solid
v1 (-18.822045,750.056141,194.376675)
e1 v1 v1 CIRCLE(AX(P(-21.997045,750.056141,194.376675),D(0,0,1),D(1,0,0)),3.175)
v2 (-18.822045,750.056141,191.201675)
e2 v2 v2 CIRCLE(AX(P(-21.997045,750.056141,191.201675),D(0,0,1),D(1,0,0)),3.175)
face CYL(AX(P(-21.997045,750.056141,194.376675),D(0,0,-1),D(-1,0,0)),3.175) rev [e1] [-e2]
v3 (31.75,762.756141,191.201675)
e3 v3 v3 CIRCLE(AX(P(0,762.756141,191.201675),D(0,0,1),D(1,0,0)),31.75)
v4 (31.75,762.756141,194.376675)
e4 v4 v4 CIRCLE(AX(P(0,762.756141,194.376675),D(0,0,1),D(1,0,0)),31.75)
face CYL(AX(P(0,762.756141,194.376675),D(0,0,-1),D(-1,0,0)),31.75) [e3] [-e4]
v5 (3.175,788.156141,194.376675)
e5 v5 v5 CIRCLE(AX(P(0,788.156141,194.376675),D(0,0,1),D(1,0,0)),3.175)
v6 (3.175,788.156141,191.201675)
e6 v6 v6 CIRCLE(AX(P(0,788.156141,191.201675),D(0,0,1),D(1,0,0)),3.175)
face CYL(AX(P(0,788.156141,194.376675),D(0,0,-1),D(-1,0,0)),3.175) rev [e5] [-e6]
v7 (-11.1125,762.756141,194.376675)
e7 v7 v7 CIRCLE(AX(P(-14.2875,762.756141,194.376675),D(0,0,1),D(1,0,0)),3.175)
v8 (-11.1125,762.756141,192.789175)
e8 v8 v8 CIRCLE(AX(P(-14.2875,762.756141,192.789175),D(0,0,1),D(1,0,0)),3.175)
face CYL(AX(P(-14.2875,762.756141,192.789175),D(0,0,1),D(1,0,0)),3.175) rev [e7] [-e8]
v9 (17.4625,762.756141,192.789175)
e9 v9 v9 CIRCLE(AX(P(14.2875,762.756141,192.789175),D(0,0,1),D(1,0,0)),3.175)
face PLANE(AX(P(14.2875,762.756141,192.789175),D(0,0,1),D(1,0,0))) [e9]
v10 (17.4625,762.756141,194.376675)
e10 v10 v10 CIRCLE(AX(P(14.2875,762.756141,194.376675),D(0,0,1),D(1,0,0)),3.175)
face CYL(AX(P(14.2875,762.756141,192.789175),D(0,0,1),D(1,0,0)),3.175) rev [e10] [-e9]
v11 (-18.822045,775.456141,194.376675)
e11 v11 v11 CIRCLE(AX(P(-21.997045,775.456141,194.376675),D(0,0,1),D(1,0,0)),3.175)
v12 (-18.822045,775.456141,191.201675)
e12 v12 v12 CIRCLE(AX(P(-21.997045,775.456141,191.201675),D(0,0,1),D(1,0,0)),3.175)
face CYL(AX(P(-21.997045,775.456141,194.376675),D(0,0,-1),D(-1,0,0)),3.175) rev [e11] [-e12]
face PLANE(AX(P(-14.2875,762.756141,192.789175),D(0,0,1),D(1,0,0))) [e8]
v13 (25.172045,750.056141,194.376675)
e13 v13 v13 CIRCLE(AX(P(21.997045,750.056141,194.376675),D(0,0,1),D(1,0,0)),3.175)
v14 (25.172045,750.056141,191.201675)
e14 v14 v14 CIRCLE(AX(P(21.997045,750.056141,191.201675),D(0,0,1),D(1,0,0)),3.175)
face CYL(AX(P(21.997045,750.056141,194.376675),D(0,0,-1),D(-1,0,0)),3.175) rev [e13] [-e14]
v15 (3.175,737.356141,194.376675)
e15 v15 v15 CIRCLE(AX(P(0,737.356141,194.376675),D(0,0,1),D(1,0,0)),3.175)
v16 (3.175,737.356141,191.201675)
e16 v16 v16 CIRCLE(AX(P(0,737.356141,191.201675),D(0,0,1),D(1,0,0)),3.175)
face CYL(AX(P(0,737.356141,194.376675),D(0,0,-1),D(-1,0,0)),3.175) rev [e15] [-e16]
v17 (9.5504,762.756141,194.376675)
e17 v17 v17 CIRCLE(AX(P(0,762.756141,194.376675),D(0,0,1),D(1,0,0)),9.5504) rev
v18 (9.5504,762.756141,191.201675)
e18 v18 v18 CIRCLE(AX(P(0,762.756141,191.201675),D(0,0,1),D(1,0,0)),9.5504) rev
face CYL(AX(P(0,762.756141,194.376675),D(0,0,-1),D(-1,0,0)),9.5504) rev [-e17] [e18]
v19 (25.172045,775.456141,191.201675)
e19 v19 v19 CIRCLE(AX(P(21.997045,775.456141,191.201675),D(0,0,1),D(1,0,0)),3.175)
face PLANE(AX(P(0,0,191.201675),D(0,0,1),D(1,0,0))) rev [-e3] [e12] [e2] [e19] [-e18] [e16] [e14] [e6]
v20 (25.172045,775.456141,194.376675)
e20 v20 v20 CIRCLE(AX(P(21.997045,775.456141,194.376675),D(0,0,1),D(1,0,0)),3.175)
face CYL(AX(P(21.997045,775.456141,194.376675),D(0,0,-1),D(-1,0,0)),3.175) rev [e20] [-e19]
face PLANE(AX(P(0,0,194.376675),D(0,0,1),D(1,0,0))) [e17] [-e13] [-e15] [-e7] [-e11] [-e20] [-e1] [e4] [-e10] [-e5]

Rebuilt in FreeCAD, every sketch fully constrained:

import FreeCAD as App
import Part
import Sketcher
Q = App.Units.Quantity

doc = App.newDocument("Part")
body = doc.addObject("PartDesign::Body", "Body")

# Sketch on XY plane
sketch1 = doc.addObject("Sketcher::SketchObject", "Sketch")
body.addObject(sketch1)
sketch1.AttachmentSupport = (doc.XY_Plane, [""])
sketch1.MapMode = "FlatFace"
sketch1.AttachmentOffset = App.Placement(App.Vector(0, 0, 191.201675), App.Rotation())
sketch1.addGeometry([
    Part.Circle(App.Vector(0, 762.8, 0), App.Vector(0, 0, 1), 31.8),  # 0
    Part.Circle(App.Vector(-22, 750.1, 0), App.Vector(0, 0, 1), 3.2),  # 1
    Part.Circle(App.Vector(0, 737.4, 0), App.Vector(0, 0, 1), 3.2),  # 2
    Part.Circle(App.Vector(22, 750.1, 0), App.Vector(0, 0, 1), 3.2),  # 3
    Part.Circle(App.Vector(-22, 775.5, 0), App.Vector(0, 0, 1), 3.2),  # 4
    Part.Circle(App.Vector(22, 775.5, 0), App.Vector(0, 0, 1), 3.2),  # 5
    Part.Circle(App.Vector(0, 788.2, 0), App.Vector(0, 0, 1), 3.2),  # 6
    Part.Circle(App.Vector(0, 762.8, 0), App.Vector(0, 0, 1), 9.6),  # 7
], False)
sketch1.addConstraint([
    Sketcher.Constraint("Coincident", 7, 3, 0, 3),
    Sketcher.Constraint("Equal", 1, 2),
    Sketcher.Constraint("Equal", 2, 3),
    Sketcher.Constraint("Equal", 3, 4),
    Sketcher.Constraint("Equal", 4, 5),
    Sketcher.Constraint("Equal", 5, 6),
    Sketcher.Constraint("Symmetric", 1, 3, 3, 3, -2),
    Sketcher.Constraint("Symmetric", 4, 3, 5, 3, -2),
    Sketcher.Constraint("PointOnObject", 0, 3, -2),
    Sketcher.Constraint("PointOnObject", 2, 3, -2),
    Sketcher.Constraint("PointOnObject", 6, 3, -2),
    Sketcher.Constraint("Vertical", 1, 3, 4, 3),
    Sketcher.Constraint("Diameter", 0, Q("2.5 in")),
    Sketcher.Constraint("Diameter", 1, Q("0.25 in")),
    Sketcher.Constraint("Diameter", 7, Q("0.752 in")),
    Sketcher.Constraint("DistanceY", 2, 3, 0, 3, Q("1 in")),
    Sketcher.Constraint("DistanceY", 1, 3, 4, 3, Q("1 in")),
    Sketcher.Constraint("DistanceY", 0, 3, 6, 3, Q("1 in")),
    Sketcher.Constraint("DistanceY", 1, 3, 0, 3, Q("0.5 in")),
    Sketcher.Constraint("DistanceY", -1, 1, 0, 3, Q("762.756141 mm")),
    Sketcher.Constraint("DistanceX", 1, 3, 3, 3, Q("43.994091 mm")),
])
pad1 = doc.addObject("PartDesign::Pad", "Pad")
body.addObject(pad1)
pad1.Profile = sketch1
pad1.Length = Q("0.125 in")

# Sketch on XY plane
sketch2 = doc.addObject("Sketcher::SketchObject", "Sketch001")
body.addObject(sketch2)
sketch2.AttachmentSupport = (doc.XY_Plane, [""])
sketch2.MapMode = "FlatFace"
sketch2.AttachmentOffset = App.Placement(App.Vector(0, 0, 194.376675), App.Rotation())
sketch2.addGeometry([
    Part.Circle(App.Vector(-14.3, 762.8, 0), App.Vector(0, 0, 1), 3.2),
    Part.Circle(App.Vector(14.3, 762.8, 0), App.Vector(0, 0, 1), 3.2),
], False)
sketch2.addConstraint([
    Sketcher.Constraint("Equal", 0, 1),
    Sketcher.Constraint("Symmetric", 0, 3, 1, 3, -2),
    Sketcher.Constraint("Diameter", 0, Q("0.25 in")),
    Sketcher.Constraint("DistanceX", 0, 3, -1, 1, Q("0.5625 in")),
    Sketcher.Constraint("DistanceY", -1, 1, 0, 3, Q("762.756141 mm")),
])
pocket1 = doc.addObject("PartDesign::Pocket", "Pocket")
body.addObject(pocket1)
pocket1.Profile = sketch2
pocket1.Length = Q("0.0625 in")

doc.recompute()
